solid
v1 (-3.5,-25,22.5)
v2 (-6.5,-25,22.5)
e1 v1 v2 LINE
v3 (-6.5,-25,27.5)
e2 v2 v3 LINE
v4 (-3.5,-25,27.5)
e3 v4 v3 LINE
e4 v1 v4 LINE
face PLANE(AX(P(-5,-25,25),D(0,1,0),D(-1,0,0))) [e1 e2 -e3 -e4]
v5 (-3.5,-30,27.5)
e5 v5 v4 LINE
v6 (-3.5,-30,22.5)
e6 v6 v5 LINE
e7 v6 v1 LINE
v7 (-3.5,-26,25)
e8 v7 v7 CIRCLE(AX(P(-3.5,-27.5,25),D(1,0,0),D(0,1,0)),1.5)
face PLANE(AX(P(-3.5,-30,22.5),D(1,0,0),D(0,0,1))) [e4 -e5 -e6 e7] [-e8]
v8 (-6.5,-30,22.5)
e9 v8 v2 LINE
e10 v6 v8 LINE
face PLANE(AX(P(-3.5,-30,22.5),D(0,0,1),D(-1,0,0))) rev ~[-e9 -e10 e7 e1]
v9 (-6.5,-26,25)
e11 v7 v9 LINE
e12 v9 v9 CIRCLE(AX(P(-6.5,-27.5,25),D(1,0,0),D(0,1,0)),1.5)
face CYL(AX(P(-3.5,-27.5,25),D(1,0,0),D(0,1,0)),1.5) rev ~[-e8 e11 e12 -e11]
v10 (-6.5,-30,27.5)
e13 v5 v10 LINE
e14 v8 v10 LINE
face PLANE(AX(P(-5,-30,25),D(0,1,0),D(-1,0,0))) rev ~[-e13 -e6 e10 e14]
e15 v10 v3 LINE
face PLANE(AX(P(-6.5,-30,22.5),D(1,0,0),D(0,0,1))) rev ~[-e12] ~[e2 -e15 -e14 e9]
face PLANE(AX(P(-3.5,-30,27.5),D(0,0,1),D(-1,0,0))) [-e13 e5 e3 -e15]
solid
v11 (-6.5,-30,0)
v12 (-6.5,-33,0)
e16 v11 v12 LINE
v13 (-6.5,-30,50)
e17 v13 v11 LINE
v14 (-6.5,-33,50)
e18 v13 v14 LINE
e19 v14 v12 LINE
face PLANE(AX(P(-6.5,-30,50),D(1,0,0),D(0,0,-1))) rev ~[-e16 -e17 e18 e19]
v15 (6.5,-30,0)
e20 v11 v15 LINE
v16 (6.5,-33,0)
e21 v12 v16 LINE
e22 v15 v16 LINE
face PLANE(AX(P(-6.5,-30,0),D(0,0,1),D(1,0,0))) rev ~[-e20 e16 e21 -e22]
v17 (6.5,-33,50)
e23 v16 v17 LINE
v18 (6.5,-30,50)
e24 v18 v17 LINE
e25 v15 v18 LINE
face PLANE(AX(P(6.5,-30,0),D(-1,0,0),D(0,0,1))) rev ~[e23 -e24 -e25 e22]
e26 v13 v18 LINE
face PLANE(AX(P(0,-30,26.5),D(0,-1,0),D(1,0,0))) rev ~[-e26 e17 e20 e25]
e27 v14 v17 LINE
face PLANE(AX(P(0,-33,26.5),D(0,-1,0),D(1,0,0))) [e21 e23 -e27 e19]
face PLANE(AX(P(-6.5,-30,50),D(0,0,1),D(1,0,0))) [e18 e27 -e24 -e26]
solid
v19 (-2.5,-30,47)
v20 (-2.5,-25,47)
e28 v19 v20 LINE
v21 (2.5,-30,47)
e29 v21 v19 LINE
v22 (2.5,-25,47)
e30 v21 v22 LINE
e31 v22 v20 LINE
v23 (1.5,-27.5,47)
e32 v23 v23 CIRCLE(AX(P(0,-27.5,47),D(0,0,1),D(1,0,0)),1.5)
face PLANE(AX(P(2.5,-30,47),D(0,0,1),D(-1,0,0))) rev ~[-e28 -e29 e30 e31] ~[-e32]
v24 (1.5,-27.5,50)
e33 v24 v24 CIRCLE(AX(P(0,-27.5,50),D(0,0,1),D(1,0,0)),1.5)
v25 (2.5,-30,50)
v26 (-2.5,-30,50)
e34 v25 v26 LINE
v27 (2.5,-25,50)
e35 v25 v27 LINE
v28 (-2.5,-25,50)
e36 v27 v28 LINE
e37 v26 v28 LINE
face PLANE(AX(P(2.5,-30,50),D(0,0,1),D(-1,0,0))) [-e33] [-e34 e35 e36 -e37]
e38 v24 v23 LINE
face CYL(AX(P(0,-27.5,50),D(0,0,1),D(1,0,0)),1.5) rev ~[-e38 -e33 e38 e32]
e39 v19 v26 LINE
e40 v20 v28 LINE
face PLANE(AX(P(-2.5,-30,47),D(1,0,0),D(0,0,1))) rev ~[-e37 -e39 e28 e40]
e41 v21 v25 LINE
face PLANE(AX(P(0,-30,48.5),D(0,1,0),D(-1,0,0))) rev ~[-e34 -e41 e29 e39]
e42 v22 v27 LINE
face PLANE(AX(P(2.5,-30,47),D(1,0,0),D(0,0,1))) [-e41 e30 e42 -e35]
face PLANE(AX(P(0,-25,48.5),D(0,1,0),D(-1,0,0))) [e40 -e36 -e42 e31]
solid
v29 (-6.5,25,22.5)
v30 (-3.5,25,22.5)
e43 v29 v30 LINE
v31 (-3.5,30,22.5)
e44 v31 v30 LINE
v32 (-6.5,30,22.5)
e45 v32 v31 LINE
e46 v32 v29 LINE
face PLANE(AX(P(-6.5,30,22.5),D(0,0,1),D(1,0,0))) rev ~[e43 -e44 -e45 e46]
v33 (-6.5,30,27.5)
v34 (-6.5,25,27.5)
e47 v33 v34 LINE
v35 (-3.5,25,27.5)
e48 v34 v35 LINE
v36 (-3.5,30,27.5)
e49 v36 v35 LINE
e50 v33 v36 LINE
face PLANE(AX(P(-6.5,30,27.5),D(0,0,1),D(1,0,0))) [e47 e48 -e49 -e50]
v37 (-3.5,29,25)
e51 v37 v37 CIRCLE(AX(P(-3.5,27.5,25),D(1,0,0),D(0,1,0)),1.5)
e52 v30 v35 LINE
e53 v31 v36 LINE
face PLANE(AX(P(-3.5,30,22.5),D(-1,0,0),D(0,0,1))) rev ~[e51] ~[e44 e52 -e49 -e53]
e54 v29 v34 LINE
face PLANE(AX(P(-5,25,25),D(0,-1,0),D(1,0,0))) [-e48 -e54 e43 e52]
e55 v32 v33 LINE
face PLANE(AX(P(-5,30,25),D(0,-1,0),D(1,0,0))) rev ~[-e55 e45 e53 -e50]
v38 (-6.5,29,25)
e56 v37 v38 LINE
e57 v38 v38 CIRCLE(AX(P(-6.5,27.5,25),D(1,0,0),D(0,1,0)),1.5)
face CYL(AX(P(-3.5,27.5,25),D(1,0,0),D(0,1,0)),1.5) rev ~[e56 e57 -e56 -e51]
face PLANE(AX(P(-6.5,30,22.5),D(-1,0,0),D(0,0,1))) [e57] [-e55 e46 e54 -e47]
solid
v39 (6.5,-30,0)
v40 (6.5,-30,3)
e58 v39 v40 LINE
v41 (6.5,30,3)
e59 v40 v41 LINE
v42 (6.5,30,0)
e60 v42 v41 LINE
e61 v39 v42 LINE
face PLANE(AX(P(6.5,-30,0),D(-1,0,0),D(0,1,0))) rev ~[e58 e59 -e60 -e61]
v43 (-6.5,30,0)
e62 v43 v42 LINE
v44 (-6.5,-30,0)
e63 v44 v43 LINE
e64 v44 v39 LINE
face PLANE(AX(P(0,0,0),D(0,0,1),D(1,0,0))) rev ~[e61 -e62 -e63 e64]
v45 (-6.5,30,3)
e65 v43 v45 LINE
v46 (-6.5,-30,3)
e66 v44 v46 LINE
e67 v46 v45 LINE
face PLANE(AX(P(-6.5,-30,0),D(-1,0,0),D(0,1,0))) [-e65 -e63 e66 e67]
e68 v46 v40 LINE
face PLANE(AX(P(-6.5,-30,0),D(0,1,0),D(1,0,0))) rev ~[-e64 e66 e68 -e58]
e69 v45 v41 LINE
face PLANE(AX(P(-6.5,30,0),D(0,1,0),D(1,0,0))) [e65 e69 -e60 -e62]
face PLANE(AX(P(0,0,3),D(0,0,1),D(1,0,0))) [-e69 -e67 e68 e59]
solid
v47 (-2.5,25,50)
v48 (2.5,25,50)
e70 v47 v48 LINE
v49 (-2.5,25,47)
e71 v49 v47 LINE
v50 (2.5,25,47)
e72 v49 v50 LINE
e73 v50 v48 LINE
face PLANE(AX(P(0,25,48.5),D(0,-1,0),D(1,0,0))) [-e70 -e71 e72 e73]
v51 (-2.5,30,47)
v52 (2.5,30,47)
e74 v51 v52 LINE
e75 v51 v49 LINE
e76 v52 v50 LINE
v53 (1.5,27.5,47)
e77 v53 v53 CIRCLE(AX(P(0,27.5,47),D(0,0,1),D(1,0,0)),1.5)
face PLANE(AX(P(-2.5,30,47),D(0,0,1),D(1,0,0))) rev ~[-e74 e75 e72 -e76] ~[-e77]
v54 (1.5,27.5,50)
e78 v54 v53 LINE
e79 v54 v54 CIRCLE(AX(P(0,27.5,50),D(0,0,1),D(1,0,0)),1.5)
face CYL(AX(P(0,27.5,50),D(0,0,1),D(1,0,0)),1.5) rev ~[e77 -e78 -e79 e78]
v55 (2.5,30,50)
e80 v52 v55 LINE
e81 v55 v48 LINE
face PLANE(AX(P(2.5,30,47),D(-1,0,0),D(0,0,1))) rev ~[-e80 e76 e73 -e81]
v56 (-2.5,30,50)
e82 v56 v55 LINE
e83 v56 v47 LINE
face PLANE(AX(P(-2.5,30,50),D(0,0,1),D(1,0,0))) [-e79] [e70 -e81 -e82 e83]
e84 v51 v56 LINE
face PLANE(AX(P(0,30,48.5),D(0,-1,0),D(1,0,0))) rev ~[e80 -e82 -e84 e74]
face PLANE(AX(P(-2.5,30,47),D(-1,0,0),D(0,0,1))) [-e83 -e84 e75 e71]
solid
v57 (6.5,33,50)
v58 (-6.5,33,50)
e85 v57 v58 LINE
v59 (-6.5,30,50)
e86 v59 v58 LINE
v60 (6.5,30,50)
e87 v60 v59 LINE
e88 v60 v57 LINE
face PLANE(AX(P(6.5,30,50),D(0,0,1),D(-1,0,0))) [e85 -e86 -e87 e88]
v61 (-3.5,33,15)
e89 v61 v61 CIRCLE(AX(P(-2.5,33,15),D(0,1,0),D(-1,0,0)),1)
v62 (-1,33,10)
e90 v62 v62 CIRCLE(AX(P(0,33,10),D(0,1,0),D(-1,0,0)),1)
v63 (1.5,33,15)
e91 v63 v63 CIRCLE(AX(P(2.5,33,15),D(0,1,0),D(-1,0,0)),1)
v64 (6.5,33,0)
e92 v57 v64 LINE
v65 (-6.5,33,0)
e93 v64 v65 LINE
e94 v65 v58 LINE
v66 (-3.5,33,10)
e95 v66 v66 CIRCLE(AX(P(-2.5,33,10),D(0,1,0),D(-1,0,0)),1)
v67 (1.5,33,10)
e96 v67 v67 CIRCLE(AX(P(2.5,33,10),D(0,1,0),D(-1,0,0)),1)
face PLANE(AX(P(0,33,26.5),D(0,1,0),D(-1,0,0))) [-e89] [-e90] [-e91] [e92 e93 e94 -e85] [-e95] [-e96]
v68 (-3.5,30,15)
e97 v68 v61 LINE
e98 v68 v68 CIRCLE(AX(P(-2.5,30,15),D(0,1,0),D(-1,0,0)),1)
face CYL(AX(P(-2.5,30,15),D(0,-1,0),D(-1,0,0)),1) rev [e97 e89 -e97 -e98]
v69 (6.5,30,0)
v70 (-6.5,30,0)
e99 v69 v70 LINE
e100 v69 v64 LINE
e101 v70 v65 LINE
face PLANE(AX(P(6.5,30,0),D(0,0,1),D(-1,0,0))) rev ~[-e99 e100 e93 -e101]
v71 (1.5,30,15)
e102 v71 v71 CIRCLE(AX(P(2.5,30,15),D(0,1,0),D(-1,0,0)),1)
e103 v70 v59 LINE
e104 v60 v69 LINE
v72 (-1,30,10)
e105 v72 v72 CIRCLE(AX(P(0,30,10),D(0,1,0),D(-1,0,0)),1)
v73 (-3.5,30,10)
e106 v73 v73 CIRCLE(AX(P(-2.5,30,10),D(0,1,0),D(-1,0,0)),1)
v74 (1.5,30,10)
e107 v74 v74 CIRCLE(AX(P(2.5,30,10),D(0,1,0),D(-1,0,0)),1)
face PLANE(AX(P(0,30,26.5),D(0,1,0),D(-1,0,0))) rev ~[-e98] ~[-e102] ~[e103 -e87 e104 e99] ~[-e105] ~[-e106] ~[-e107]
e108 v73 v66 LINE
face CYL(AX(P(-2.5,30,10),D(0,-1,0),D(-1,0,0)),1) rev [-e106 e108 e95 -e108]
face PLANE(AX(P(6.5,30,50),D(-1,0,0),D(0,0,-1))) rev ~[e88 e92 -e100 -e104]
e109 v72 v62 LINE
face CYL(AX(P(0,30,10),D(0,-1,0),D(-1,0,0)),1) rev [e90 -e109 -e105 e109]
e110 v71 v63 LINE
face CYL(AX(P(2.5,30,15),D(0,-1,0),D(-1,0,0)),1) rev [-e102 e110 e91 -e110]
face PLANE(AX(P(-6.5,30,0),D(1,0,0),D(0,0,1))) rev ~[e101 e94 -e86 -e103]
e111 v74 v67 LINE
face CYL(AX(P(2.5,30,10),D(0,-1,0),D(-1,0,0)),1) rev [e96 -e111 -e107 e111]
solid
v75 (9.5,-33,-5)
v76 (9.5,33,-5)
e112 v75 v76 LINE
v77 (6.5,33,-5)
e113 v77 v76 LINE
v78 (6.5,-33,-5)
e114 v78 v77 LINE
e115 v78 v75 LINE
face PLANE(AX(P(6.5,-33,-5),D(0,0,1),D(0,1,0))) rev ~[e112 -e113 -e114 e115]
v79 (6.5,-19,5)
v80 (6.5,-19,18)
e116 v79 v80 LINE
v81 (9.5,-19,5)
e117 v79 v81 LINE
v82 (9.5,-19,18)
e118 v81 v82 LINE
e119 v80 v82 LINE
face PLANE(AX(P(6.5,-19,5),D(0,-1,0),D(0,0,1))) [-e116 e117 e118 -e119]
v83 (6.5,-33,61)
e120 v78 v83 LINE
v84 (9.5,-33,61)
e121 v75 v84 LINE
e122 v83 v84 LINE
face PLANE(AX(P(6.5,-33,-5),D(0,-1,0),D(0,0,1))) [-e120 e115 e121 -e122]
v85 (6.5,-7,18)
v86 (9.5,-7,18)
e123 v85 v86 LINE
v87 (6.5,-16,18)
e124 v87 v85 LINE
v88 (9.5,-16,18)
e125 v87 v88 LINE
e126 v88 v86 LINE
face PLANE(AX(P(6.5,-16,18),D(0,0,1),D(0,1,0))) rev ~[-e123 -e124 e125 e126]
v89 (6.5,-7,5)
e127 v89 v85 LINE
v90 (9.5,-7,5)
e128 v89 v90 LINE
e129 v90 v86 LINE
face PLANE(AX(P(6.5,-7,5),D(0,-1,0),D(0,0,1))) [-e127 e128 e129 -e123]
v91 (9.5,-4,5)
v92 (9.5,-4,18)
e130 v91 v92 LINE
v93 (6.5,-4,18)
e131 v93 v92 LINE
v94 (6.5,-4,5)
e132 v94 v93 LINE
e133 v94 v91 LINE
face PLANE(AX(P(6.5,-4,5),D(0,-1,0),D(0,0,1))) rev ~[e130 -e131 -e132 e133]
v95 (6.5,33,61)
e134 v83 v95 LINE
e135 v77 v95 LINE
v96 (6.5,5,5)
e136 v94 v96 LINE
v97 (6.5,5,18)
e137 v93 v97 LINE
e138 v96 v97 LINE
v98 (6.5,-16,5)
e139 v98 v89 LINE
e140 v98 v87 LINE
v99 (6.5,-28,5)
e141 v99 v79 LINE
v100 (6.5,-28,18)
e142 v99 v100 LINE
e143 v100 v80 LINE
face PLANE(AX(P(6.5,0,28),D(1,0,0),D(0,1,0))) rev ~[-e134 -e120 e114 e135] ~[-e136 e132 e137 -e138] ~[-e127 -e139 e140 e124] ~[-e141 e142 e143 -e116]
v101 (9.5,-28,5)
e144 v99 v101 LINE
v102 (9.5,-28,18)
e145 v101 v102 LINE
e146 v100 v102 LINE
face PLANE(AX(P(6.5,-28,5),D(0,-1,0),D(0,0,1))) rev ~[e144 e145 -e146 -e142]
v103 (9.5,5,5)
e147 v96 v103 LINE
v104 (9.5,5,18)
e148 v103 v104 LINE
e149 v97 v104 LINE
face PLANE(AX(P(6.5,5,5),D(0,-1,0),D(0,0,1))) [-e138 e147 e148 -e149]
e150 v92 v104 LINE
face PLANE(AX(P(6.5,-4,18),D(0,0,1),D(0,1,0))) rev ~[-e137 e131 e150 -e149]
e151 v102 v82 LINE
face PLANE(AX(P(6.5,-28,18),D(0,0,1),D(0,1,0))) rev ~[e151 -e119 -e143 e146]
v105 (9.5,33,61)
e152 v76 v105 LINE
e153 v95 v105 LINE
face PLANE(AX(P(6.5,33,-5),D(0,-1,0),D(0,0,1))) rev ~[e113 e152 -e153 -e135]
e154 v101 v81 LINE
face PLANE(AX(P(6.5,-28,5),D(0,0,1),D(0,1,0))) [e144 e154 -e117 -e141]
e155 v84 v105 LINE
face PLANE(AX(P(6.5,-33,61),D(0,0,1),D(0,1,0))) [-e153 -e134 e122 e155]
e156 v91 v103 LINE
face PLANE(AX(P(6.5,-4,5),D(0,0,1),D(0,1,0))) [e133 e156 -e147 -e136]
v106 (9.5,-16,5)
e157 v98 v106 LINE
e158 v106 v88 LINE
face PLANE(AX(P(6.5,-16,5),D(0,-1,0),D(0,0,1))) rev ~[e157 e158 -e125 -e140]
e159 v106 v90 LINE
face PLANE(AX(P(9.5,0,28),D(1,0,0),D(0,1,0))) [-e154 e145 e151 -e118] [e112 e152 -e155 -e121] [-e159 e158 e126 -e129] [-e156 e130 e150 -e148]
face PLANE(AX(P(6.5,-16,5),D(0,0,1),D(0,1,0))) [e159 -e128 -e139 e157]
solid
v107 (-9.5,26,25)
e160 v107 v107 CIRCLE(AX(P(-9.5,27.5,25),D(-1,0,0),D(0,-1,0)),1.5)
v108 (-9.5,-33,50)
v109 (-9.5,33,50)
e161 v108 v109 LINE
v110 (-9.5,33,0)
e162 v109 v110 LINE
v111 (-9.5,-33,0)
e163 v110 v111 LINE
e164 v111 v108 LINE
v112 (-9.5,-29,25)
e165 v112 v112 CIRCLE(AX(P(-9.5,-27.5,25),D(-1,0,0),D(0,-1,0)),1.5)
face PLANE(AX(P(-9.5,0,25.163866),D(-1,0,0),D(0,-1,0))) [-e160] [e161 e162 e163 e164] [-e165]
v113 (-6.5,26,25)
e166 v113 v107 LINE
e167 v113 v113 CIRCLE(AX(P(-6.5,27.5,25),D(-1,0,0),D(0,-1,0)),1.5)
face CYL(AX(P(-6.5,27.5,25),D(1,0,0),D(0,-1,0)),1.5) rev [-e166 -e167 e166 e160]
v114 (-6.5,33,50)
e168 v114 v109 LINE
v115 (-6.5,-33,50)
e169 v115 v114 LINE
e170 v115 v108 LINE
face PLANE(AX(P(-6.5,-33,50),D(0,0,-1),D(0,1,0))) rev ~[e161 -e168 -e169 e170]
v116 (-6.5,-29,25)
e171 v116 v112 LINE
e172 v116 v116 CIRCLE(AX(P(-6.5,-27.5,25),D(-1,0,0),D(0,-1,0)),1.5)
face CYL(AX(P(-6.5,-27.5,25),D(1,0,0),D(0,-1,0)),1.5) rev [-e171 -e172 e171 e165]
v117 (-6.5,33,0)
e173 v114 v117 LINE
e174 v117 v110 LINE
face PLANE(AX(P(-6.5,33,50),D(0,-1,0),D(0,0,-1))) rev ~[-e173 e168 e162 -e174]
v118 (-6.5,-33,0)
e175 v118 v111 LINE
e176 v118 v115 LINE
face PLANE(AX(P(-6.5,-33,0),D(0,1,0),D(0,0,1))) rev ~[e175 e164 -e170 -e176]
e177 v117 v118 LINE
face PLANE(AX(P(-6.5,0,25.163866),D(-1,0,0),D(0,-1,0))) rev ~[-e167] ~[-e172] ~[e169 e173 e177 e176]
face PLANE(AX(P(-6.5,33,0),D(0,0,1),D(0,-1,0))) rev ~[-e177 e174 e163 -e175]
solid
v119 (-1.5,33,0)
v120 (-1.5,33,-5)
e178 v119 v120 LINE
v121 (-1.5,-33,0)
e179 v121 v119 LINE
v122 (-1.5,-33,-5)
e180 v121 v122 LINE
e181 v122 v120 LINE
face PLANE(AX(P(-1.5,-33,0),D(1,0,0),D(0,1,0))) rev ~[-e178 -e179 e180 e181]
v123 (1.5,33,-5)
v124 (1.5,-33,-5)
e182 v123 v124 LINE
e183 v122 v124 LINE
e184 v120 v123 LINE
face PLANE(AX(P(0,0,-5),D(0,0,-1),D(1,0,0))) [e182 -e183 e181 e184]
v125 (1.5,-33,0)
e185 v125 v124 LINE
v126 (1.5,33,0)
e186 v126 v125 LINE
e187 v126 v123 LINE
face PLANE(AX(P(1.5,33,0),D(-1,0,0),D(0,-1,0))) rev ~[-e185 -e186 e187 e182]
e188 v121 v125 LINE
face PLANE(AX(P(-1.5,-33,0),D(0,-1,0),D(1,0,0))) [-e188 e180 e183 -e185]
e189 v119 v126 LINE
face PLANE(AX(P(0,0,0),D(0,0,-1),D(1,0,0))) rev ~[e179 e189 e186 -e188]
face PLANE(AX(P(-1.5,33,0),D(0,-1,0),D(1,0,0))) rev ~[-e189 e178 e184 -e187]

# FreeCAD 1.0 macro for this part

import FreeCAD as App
import Part
import Sketcher
from FreeCAD import Vector
Q = App.Units.Quantity

doc = App.newDocument("Part")
body = doc.addObject("PartDesign::Body", "Body")

# Sketch on XY plane
sketch1 = body.newObject("Sketcher::SketchObject", "Sketch")
sketch1.AttachmentSupport = (doc.getObject("XY_Plane"), [""])
sketch1.MapMode = "FlatFace"
sketch1.addGeometry(Part.LineSegment(Vector(-6, 30, 0), Vector(-6, -30, 0)), False)
sketch1.addGeometry(Part.LineSegment(Vector(-6, -30, 0), Vector(6, -30, 0)), False)
sketch1.addGeometry(Part.LineSegment(Vector(6, -30, 0), Vector(6, 30, 0)), False)
sketch1.addGeometry(Part.LineSegment(Vector(6, 30, 0), Vector(-6, 30, 0)), False)
sketch1.addConstraint(Sketcher.Constraint("Coincident", 0, 2, 1, 1))
sketch1.addConstraint(Sketcher.Constraint("Coincident", 1, 2, 2, 1))
sketch1.addConstraint(Sketcher.Constraint("Coincident", 2, 2, 3, 1))
sketch1.addConstraint(Sketcher.Constraint("Coincident", 3, 2, 0, 1))
sketch1.addConstraint(Sketcher.Constraint("Vertical", 0))
sketch1.addConstraint(Sketcher.Constraint("Horizontal", 1))
sketch1.addConstraint(Sketcher.Constraint("Vertical", 2))
sketch1.addConstraint(Sketcher.Constraint("Horizontal", 3))
sketch1.addConstraint(Sketcher.Constraint("Symmetric", 0, 2, 2, 2, -1, 1))
sketch1.addConstraint(Sketcher.Constraint("DistanceX", 1, 1, 1, 2, Q("13 mm")))
sketch1.addConstraint(Sketcher.Constraint("DistanceY", 0, 2, 0, 1, Q("60 mm")))
pad1 = body.newObject("PartDesign::Pad", "Pad")
pad1.Profile = sketch1
pad1.Length = 3
body2 = doc.addObject("PartDesign::Body", "Body001")

# Sketch on XZ plane
sketch2 = body2.newObject("Sketcher::SketchObject", "Sketch001")
sketch2.AttachmentSupport = (doc.getObject("XZ_Plane001"), [""])
sketch2.MapMode = "FlatFace"
sketch2.AttachmentOffset = App.Placement(Vector(0, 0, -30), App.Rotation())
sketch2.addGeometry(Part.LineSegment(Vector(6.5, 50, 0), Vector(6.5, 0, 0)), False)
sketch2.addGeometry(Part.LineSegment(Vector(6.5, 0, 0), Vector(-6.5, 0, 0)), False)
sketch2.addGeometry(Part.LineSegment(Vector(-6.5, 0, 0), Vector(-6.5, 50, 0)), False)
sketch2.addGeometry(Part.LineSegment(Vector(-6.5, 50, 0), Vector(6.5, 50, 0)), False)
sketch2.addGeometry(Part.Circle(Vector(2.5, 10, 0), Vector(0, 0, 1), 1), False)
sketch2.addGeometry(Part.Circle(Vector(0, 10, 0), Vector(0, 0, 1), 1), False)
sketch2.addGeometry(Part.Circle(Vector(-2.5, 10, 0), Vector(0, 0, 1), 1), False)
sketch2.addGeometry(Part.Circle(Vector(2.5, 15, 0), Vector(0, 0, 1), 1), False)
sketch2.addGeometry(Part.Circle(Vector(-2.5, 15, 0), Vector(0, 0, 1), 1), False)
sketch2.addConstraint(Sketcher.Constraint("Coincident", 0, 2, 1, 1))
sketch2.addConstraint(Sketcher.Constraint("Coincident", 1, 2, 2, 1))
sketch2.addConstraint(Sketcher.Constraint("Coincident", 2, 2, 3, 1))
sketch2.addConstraint(Sketcher.Constraint("Coincident", 3, 2, 0, 1))
sketch2.addConstraint(Sketcher.Constraint("Vertical", 0))
sketch2.addConstraint(Sketcher.Constraint("Horizontal", 1))
sketch2.addConstraint(Sketcher.Constraint("Vertical", 2))
sketch2.addConstraint(Sketcher.Constraint("Horizontal", 3))
sketch2.addConstraint(Sketcher.Constraint("Equal", 4, 5))
sketch2.addConstraint(Sketcher.Constraint("Equal", 5, 6))
sketch2.addConstraint(Sketcher.Constraint("Equal", 6, 7))
sketch2.addConstraint(Sketcher.Constraint("Equal", 7, 8))
sketch2.addConstraint(Sketcher.Constraint("Symmetric", 0, 2, 1, 2, -1, 1))
sketch2.addConstraint(Sketcher.Constraint("Symmetric", 4, 3, 6, 3, -2))
sketch2.addConstraint(Sketcher.Constraint("Symmetric", 7, 3, 8, 3, -2))
sketch2.addConstraint(Sketcher.Constraint("PointOnObject", 5, 3, -2))
sketch2.addConstraint(Sketcher.Constraint("Horizontal", 4, 3, 5, 3))
sketch2.addConstraint(Sketcher.Constraint("Vertical", 4, 3, 7, 3))
sketch2.addConstraint(Sketcher.Constraint("Diameter", 4, Q("2 mm")))
sketch2.addConstraint(Sketcher.Constraint("DistanceX", 1, 2, 1, 1, Q("13 mm")))
sketch2.addConstraint(Sketcher.Constraint("DistanceY", 0, 2, 0, 1, Q("50 mm")))
sketch2.addConstraint(Sketcher.Constraint("DistanceY", -1, 1, 4, 3, Q("10 mm")))
sketch2.addConstraint(Sketcher.Constraint("DistanceY", -1, 1, 7, 3, Q("15 mm")))
sketch2.addConstraint(Sketcher.Constraint("DistanceX", 6, 3, 4, 3, Q("5 mm")))
pad2 = body2.newObject("PartDesign::Pad", "Pad001")
pad2.Profile = sketch2
pad2.Length = 3
pad2.Reversed = True
body3 = doc.addObject("PartDesign::Body", "Body002")

# Sketch on XZ plane
sketch3 = body3.newObject("Sketcher::SketchObject", "Sketch002")
sketch3.AttachmentSupport = (doc.getObject("XZ_Plane002"), [""])
sketch3.MapMode = "FlatFace"
sketch3.AttachmentOffset = App.Placement(Vector(0, 0, 30), App.Rotation())
sketch3.addGeometry(Part.LineSegment(Vector(-6, 50, 0), Vector(-6, 0, 0)), False)
sketch3.addGeometry(Part.LineSegment(Vector(-6, 0, 0), Vector(6, 0, 0)), False)
sketch3.addGeometry(Part.LineSegment(Vector(6, 0, 0), Vector(6, 50, 0)), False)
sketch3.addGeometry(Part.LineSegment(Vector(6, 50, 0), Vector(-6, 50, 0)), False)
sketch3.addConstraint(Sketcher.Constraint("Coincident", 0, 2, 1, 1))
sketch3.addConstraint(Sketcher.Constraint("Coincident", 1, 2, 2, 1))
sketch3.addConstraint(Sketcher.Constraint("Coincident", 2, 2, 3, 1))
sketch3.addConstraint(Sketcher.Constraint("Coincident", 3, 2, 0, 1))
sketch3.addConstraint(Sketcher.Constraint("Vertical", 0))
sketch3.addConstraint(Sketcher.Constraint("Horizontal", 1))
sketch3.addConstraint(Sketcher.Constraint("Vertical", 2))
sketch3.addConstraint(Sketcher.Constraint("Horizontal", 3))
sketch3.addConstraint(Sketcher.Constraint("Symmetric", 0, 2, 1, 2, -1, 1))
sketch3.addConstraint(Sketcher.Constraint("DistanceX", 1, 1, 1, 2, Q("13 mm")))
sketch3.addConstraint(Sketcher.Constraint("DistanceY", 0, 2, 0, 1, Q("50 mm")))
pad3 = body3.newObject("PartDesign::Pad", "Pad002")
pad3.Profile = sketch3
pad3.Length = 3
body4 = doc.addObject("PartDesign::Body", "Body003")

# Sketch on YZ plane
sketch4 = body4.newObject("Sketcher::SketchObject", "Sketch003")
sketch4.AttachmentSupport = (doc.getObject("YZ_Plane003"), [""])
sketch4.MapMode = "FlatFace"
sketch4.AttachmentOffset = App.Placement(Vector(0, 0, 6.5), App.Rotation())
sketch4.addGeometry(Part.LineSegment(Vector(-33, 61, 0), Vector(-33, -5, 0)), False)
sketch4.addGeometry(Part.LineSegment(Vector(-33, -5, 0), Vector(33, -5, 0)), False)
sketch4.addGeometry(Part.LineSegment(Vector(33, -5, 0), Vector(33, 61, 0)), False)
sketch4.addGeometry(Part.LineSegment(Vector(33, 61, 0), Vector(-33, 61, 0)), False)
sketch4.addGeometry(Part.LineSegment(Vector(-19, 5, 0), Vector(-28, 5, 0)), False)
sketch4.addGeometry(Part.LineSegment(Vector(-28, 5, 0), Vector(-28, 18, 0)), False)
sketch4.addGeometry(Part.LineSegment(Vector(-28, 18, 0), Vector(-19, 18, 0)), False)
sketch4.addGeometry(Part.LineSegment(Vector(-19, 18, 0), Vector(-19, 5, 0)), False)
sketch4.addGeometry(Part.LineSegment(Vector(-7, 5, 0), Vector(-16, 5, 0)), False)
sketch4.addGeometry(Part.LineSegment(Vector(-16, 5, 0), Vector(-16, 18, 0)), False)
sketch4.addGeometry(Part.LineSegment(Vector(-16, 18, 0), Vector(-7, 18, 0)), False)
sketch4.addGeometry(Part.LineSegment(Vector(-7, 18, 0), Vector(-7, 5, 0)), False)
sketch4.addGeometry(Part.LineSegment(Vector(5, 5, 0), Vector(-4, 5, 0)), False)
sketch4.addGeometry(Part.LineSegment(Vector(-4, 5, 0), Vector(-4, 18, 0)), False)
sketch4.addGeometry(Part.LineSegment(Vector(-4, 18, 0), Vector(5, 18, 0)), False)
sketch4.addGeometry(Part.LineSegment(Vector(5, 18, 0), Vector(5, 5, 0)), False)
sketch4.addConstraint(Sketcher.Constraint("Coincident", 0, 2, 1, 1))
sketch4.addConstraint(Sketcher.Constraint("Coincident", 1, 2, 2, 1))
sketch4.addConstraint(Sketcher.Constraint("Coincident", 2, 2, 3, 1))
sketch4.addConstraint(Sketcher.Constraint("Coincident", 3, 2, 0, 1))
sketch4.addConstraint(Sketcher.Constraint("Coincident", 4, 2, 5, 1))
sketch4.addConstraint(Sketcher.Constraint("Coincident", 5, 2, 6, 1))
sketch4.addConstraint(Sketcher.Constraint("Coincident", 6, 2, 7, 1))
sketch4.addConstraint(Sketcher.Constraint("Coincident", 7, 2, 4, 1))
sketch4.addConstraint(Sketcher.Constraint("Coincident", 8, 2, 9, 1))
sketch4.addConstraint(Sketcher.Constraint("Coincident", 9, 2, 10, 1))
sketch4.addConstraint(Sketcher.Constraint("Coincident", 10, 2, 11, 1))
sketch4.addConstraint(Sketcher.Constraint("Coincident", 11, 2, 8, 1))
sketch4.addConstraint(Sketcher.Constraint("Coincident", 12, 2, 13, 1))
sketch4.addConstraint(Sketcher.Constraint("Coincident", 13, 2, 14, 1))
sketch4.addConstraint(Sketcher.Constraint("Coincident", 14, 2, 15, 1))
sketch4.addConstraint(Sketcher.Constraint("Coincident", 15, 2, 12, 1))
sketch4.addConstraint(Sketcher.Constraint("Vertical", 0))
sketch4.addConstraint(Sketcher.Constraint("Horizontal", 1))
sketch4.addConstraint(Sketcher.Constraint("Vertical", 2))
sketch4.addConstraint(Sketcher.Constraint("Horizontal", 3))
sketch4.addConstraint(Sketcher.Constraint("Horizontal", 4))
sketch4.addConstraint(Sketcher.Constraint("Vertical", 5))
sketch4.addConstraint(Sketcher.Constraint("Horizontal", 6))
sketch4.addConstraint(Sketcher.Constraint("Vertical", 7))
sketch4.addConstraint(Sketcher.Constraint("Horizontal", 8))
sketch4.addConstraint(Sketcher.Constraint("Vertical", 9))
sketch4.addConstraint(Sketcher.Constraint("Horizontal", 10))
sketch4.addConstraint(Sketcher.Constraint("Vertical", 11))
sketch4.addConstraint(Sketcher.Constraint("Horizontal", 12))
sketch4.addConstraint(Sketcher.Constraint("Vertical", 13))
sketch4.addConstraint(Sketcher.Constraint("Horizontal", 14))
sketch4.addConstraint(Sketcher.Constraint("Vertical", 15))
sketch4.addConstraint(Sketcher.Constraint("Horizontal", 7, 2, 8, 2))
sketch4.addConstraint(Sketcher.Constraint("Horizontal", 6, 2, 9, 2))
sketch4.addConstraint(Sketcher.Constraint("Horizontal", 11, 2, 12, 2))
sketch4.addConstraint(Sketcher.Constraint("Horizontal", 10, 2, 13, 2))
sketch4.addConstraint(Sketcher.Constraint("Equal", 6, 8))
sketch4.addConstraint(Sketcher.Constraint("Equal", 10, 12))
sketch4.addConstraint(Sketcher.Constraint("Equal", 3, 0))
sketch4.addConstraint(Sketcher.Constraint("DistanceX", 1, 1, 1, 2, Q("66 mm")))
sketch4.addConstraint(Sketcher.Constraint("DistanceX", 4, 2, 4, 1, Q("9 mm")))
sketch4.addConstraint(Sketcher.Constraint("DistanceY", 5, 1, 5, 2, Q("13 mm")))
sketch4.addConstraint(Sketcher.Constraint("DistanceX", 0, 2, -1, 1, Q("33 mm")))
sketch4.addConstraint(Sketcher.Constraint("DistanceY", 0, 2, -1, 1, Q("5 mm")))
sketch4.addConstraint(Sketcher.Constraint("DistanceX", 4, 2, -1, 1, Q("28 mm")))
sketch4.addConstraint(Sketcher.Constraint("DistanceY", -1, 1, 4, 2, Q("5 mm")))
sketch4.addConstraint(Sketcher.Constraint("DistanceX", 8, 2, -1, 1, Q("16 mm")))
sketch4.addConstraint(Sketcher.Constraint("DistanceX", 12, 2, -1, 1, Q("4 mm")))
pad4 = body4.newObject("PartDesign::Pad", "Pad003")
pad4.Profile = sketch4
pad4.Length = 3
body5 = doc.addObject("PartDesign::Body", "Body004")

# Sketch on YZ plane
sketch5 = body5.newObject("Sketcher::SketchObject", "Sketch004")
sketch5.AttachmentSupport = (doc.getObject("YZ_Plane004"), [""])
sketch5.MapMode = "FlatFace"
sketch5.AttachmentOffset = App.Placement(Vector(0, 0, -6.5), App.Rotation())
sketch5.addGeometry(Part.LineSegment(Vector(33, 0, 0), Vector(-33, 0, 0)), False)
sketch5.addGeometry(Part.LineSegment(Vector(-33, 0, 0), Vector(-33, 50, 0)), False)
sketch5.addGeometry(Part.LineSegment(Vector(-33, 50, 0), Vector(33, 50, 0)), False)
sketch5.addGeometry(Part.LineSegment(Vector(33, 50, 0), Vector(33, 0, 0)), False)
sketch5.addGeometry(Part.Circle(Vector(27.5, 25, 0), Vector(0, 0, 1), 1.5), False)
sketch5.addGeometry(Part.Circle(Vector(-27.5, 25, 0), Vector(0, 0, 1), 1.5), False)
sketch5.addConstraint(Sketcher.Constraint("Coincident", 0, 2, 1, 1))
sketch5.addConstraint(Sketcher.Constraint("Coincident", 1, 2, 2, 1))
sketch5.addConstraint(Sketcher.Constraint("Coincident", 2, 2, 3, 1))
sketch5.addConstraint(Sketcher.Constraint("Coincident", 3, 2, 0, 1))
sketch5.addConstraint(Sketcher.Constraint("Horizontal", 0))
sketch5.addConstraint(Sketcher.Constraint("Vertical", 1))
sketch5.addConstraint(Sketcher.Constraint("Horizontal", 2))
sketch5.addConstraint(Sketcher.Constraint("Vertical", 3))
sketch5.addConstraint(Sketcher.Constraint("Equal", 4, 5))
sketch5.addConstraint(Sketcher.Constraint("Symmetric", 0, 2, 3, 2, -1, 1))
sketch5.addConstraint(Sketcher.Constraint("Symmetric", 4, 3, 5, 3, -2))
sketch5.addConstraint(Sketcher.Constraint("Diameter", 4, Q("3 mm")))
sketch5.addConstraint(Sketcher.Constraint("DistanceX", 0, 2, 0, 1, Q("66 mm")))
sketch5.addConstraint(Sketcher.Constraint("DistanceY", 1, 1, 1, 2, Q("50 mm")))
sketch5.addConstraint(Sketcher.Constraint("DistanceY", -1, 1, 4, 3, Q("25 mm")))
sketch5.addConstraint(Sketcher.Constraint("DistanceX", 5, 3, 4, 3, Q("55 mm")))
pad5 = body5.newObject("PartDesign::Pad", "Pad004")
pad5.Profile = sketch5
pad5.Length = 3
pad5.Reversed = True
body6 = doc.addObject("PartDesign::Body", "Body005")

# Sketch on XY plane
sketch6 = body6.newObject("Sketcher::SketchObject", "Sketch005")
sketch6.AttachmentSupport = (doc.getObject("XY_Plane005"), [""])
sketch6.MapMode = "FlatFace"
sketch6.addGeometry(Part.LineSegment(Vector(-1.5, 33, 0), Vector(1.5, 33, 0)), False)
sketch6.addGeometry(Part.LineSegment(Vector(1.5, 33, 0), Vector(1.5, -33, 0)), False)
sketch6.addGeometry(Part.LineSegment(Vector(1.5, -33, 0), Vector(-1.5, -33, 0)), False)
sketch6.addGeometry(Part.LineSegment(Vector(-1.5, -33, 0), Vector(-1.5, 33, 0)), False)
sketch6.addConstraint(Sketcher.Constraint("Coincident", 0, 2, 1, 1))
sketch6.addConstraint(Sketcher.Constraint("Coincident", 1, 2, 2, 1))
sketch6.addConstraint(Sketcher.Constraint("Coincident", 2, 2, 3, 1))
sketch6.addConstraint(Sketcher.Constraint("Coincident", 3, 2, 0, 1))
sketch6.addConstraint(Sketcher.Constraint("Horizontal", 0))
sketch6.addConstraint(Sketcher.Constraint("Vertical", 1))
sketch6.addConstraint(Sketcher.Constraint("Horizontal", 2))
sketch6.addConstraint(Sketcher.Constraint("Vertical", 3))
sketch6.addConstraint(Sketcher.Constraint("Symmetric", 0, 2, 2, 2, -1, 1))
sketch6.addConstraint(Sketcher.Constraint("DistanceX", 0, 1, 0, 2, Q("3 mm")))
sketch6.addConstraint(Sketcher.Constraint("DistanceY", 1, 2, 1, 1, Q("66 mm")))
pad6 = body6.newObject("PartDesign::Pad", "Pad005")
pad6.Profile = sketch6
pad6.Length = 5
pad6.Reversed = True
body7 = doc.addObject("PartDesign::Body", "Body006")

# Sketch on XZ plane
sketch7 = body7.newObject("Sketcher::SketchObject", "Sketch006")
sketch7.AttachmentSupport = (doc.getObject("XZ_Plane006"), [""])
sketch7.MapMode = "FlatFace"
sketch7.AttachmentOffset = App.Placement(Vector(0, 0, -30), App.Rotation())
sketch7.addGeometry(Part.LineSegment(Vector(-2.5, 50, 0), Vector(-2.5, 47, 0)), False)
sketch7.addGeometry(Part.LineSegment(Vector(-2.5, 47, 0), Vector(2.5, 47, 0)), False)
sketch7.addGeometry(Part.LineSegment(Vector(2.5, 47, 0), Vector(2.5, 50, 0)), False)
sketch7.addGeometry(Part.LineSegment(Vector(2.5, 50, 0), Vector(-2.5, 50, 0)), False)
sketch7.addConstraint(Sketcher.Constraint("Coincident", 0, 2, 1, 1))
sketch7.addConstraint(Sketcher.Constraint("Coincident", 1, 2, 2, 1))
sketch7.addConstraint(Sketcher.Constraint("Coincident", 2, 2, 3, 1))
sketch7.addConstraint(Sketcher.Constraint("Coincident", 3, 2, 0, 1))
sketch7.addConstraint(Sketcher.Constraint("Vertical", 0))
sketch7.addConstraint(Sketcher.Constraint("Horizontal", 1))
sketch7.addConstraint(Sketcher.Constraint("Vertical", 2))
sketch7.addConstraint(Sketcher.Constraint("Horizontal", 3))
sketch7.addConstraint(Sketcher.Constraint("DistanceX", 1, 1, 1, 2, Q("5 mm")))
sketch7.addConstraint(Sketcher.Constraint("DistanceY", 0, 2, 0, 1, Q("3 mm")))
sketch7.addConstraint(Sketcher.Constraint("DistanceY", -1, 1, 0, 2, Q("47 mm")))
sketch7.addConstraint(Sketcher.Constraint("DistanceX", 0, 2, -1, 1, Q("2.5 mm")))
pad7 = body7.newObject("PartDesign::Pad", "Pad006")
pad7.Profile = sketch7
pad7.Length = 5

# Sketch on XY plane
sketch8 = body7.newObject("Sketcher::SketchObject", "Sketch007")
sketch8.AttachmentSupport = (doc.getObject("XY_Plane006"), [""])
sketch8.MapMode = "FlatFace"
sketch8.AttachmentOffset = App.Placement(Vector(0, 0, 50), App.Rotation())
sketch8.addGeometry(Part.Circle(Vector(0, 27.5, 0), Vector(0, 0, 1), 1.5), False)
sketch8.addConstraint(Sketcher.Constraint("PointOnObject", 0, 3, -2))
sketch8.addConstraint(Sketcher.Constraint("Diameter", 0, Q("3 mm")))
sketch8.addConstraint(Sketcher.Constraint("DistanceY", -1, 1, 0, 3, Q("27.5 mm")))
pocket1 = body7.newObject("PartDesign::Pocket", "Pocket")
pocket1.Profile = sketch8
pocket1.Length = 3
body8 = doc.addObject("PartDesign::Body", "Body007")

# Sketch on XZ plane
sketch9 = body8.newObject("Sketcher::SketchObject", "Sketch008")
sketch9.AttachmentSupport = (doc.getObject("XZ_Plane007"), [""])
sketch9.MapMode = "FlatFace"
sketch9.AttachmentOffset = App.Placement(Vector(0, 0, -30), App.Rotation())
sketch9.addGeometry(Part.LineSegment(Vector(-6.5, 27.5, 0), Vector(-6.5, 22.5, 0)), False)
sketch9.addGeometry(Part.LineSegment(Vector(-6.5, 22.5, 0), Vector(-3.5, 22.5, 0)), False)
sketch9.addGeometry(Part.LineSegment(Vector(-3.5, 22.5, 0), Vector(-3.5, 27.5, 0)), False)
sketch9.addGeometry(Part.LineSegment(Vector(-3.5, 27.5, 0), Vector(-6.5, 27.5, 0)), False)
sketch9.addConstraint(Sketcher.Constraint("Coincident", 0, 2, 1, 1))
sketch9.addConstraint(Sketcher.Constraint("Coincident", 1, 2, 2, 1))
sketch9.addConstraint(Sketcher.Constraint("Coincident", 2, 2, 3, 1))
sketch9.addConstraint(Sketcher.Constraint("Coincident", 3, 2, 0, 1))
sketch9.addConstraint(Sketcher.Constraint("Vertical", 0))
sketch9.addConstraint(Sketcher.Constraint("Horizontal", 1))
sketch9.addConstraint(Sketcher.Constraint("Vertical", 2))
sketch9.addConstraint(Sketcher.Constraint("Horizontal", 3))
sketch9.addConstraint(Sketcher.Constraint("DistanceX", 1, 1, 1, 2, Q("3 mm")))
sketch9.addConstraint(Sketcher.Constraint("DistanceY", 0, 2, 0, 1, Q("5 mm")))
sketch9.addConstraint(Sketcher.Constraint("DistanceX", 0, 2, -1, 1, Q("6.5 mm")))
sketch9.addConstraint(Sketcher.Constraint("DistanceY", -1, 1, 0, 2, Q("22.5 mm")))
pad8 = body8.newObject("PartDesign::Pad", "Pad007")
pad8.Profile = sketch9
pad8.Length = 5

# Sketch on YZ plane
sketch10 = body8.newObject("Sketcher::SketchObject", "Sketch009")
sketch10.AttachmentSupport = (doc.getObject("YZ_Plane007"), [""])
sketch10.MapMode = "FlatFace"
sketch10.AttachmentOffset = App.Placement(Vector(0, 0, -3.5), App.Rotation())
sketch10.addGeometry(Part.Circle(Vector(27.5, 25, 0), Vector(0, 0, 1), 1.5), False)
sketch10.addConstraint(Sketcher.Constraint("Diameter", 0, Q("3 mm")))
sketch10.addConstraint(Sketcher.Constraint("DistanceY", -1, 1, 0, 3, Q("25 mm")))
sketch10.addConstraint(Sketcher.Constraint("DistanceX", -1, 1, 0, 3, Q("27.5 mm")))
pocket2 = body8.newObject("PartDesign::Pocket", "Pocket001")
pocket2.Profile = sketch10
pocket2.Length = 3
body9 = doc.addObject("PartDesign::Body", "Body008")

# Sketch on XZ plane
sketch11 = body9.newObject("Sketcher::SketchObject", "Sketch010")
sketch11.AttachmentSupport = (doc.getObject("XZ_Plane008"), [""])
sketch11.MapMode = "FlatFace"
sketch11.AttachmentOffset = App.Placement(Vector(0, 0, 30), App.Rotation())
sketch11.addGeometry(Part.LineSegment(Vector(-3.5, 27.5, 0), Vector(-3.5, 22.5, 0)), False)
sketch11.addGeometry(Part.LineSegment(Vector(-3.5, 22.5, 0), Vector(-6.5, 22.5, 0)), False)
sketch11.addGeometry(Part.LineSegment(Vector(-6.5, 22.5, 0), Vector(-6.5, 27.5, 0)), False)
sketch11.addGeometry(Part.LineSegment(Vector(-6.5, 27.5, 0), Vector(-3.5, 27.5, 0)), False)
sketch11.addConstraint(Sketcher.Constraint("Coincident", 0, 2, 1, 1))
sketch11.addConstraint(Sketcher.Constraint("Coincident", 1, 2, 2, 1))
sketch11.addConstraint(Sketcher.Constraint("Coincident", 2, 2, 3, 1))
sketch11.addConstraint(Sketcher.Constraint("Coincident", 3, 2, 0, 1))
sketch11.addConstraint(Sketcher.Constraint("Vertical", 0))
sketch11.addConstraint(Sketcher.Constraint("Horizontal", 1))
sketch11.addConstraint(Sketcher.Constraint("Vertical", 2))
sketch11.addConstraint(Sketcher.Constraint("Horizontal", 3))
sketch11.addConstraint(Sketcher.Constraint("DistanceX", 1, 2, 1, 1, Q("3 mm")))
sketch11.addConstraint(Sketcher.Constraint("DistanceY", 0, 2, 0, 1, Q("5 mm")))
sketch11.addConstraint(Sketcher.Constraint("DistanceX", 0, 2, -1, 1, Q("3.5 mm")))
sketch11.addConstraint(Sketcher.Constraint("DistanceY", -1, 1, 0, 2, Q("22.5 mm")))
pad9 = body9.newObject("PartDesign::Pad", "Pad008")
pad9.Profile = sketch11
pad9.Length = 5
pad9.Reversed = True

# Sketch on YZ plane
sketch12 = body9.newObject("Sketcher::SketchObject", "Sketch011")
sketch12.AttachmentSupport = (doc.getObject("YZ_Plane008"), [""])
sketch12.MapMode = "FlatFace"
sketch12.AttachmentOffset = App.Placement(Vector(0, 0, -3.5), App.Rotation())
sketch12.addGeometry(Part.Circle(Vector(-27.5, 25, 0), Vector(0, 0, 1), 1.5), False)
sketch12.addConstraint(Sketcher.Constraint("Diameter", 0, Q("3 mm")))
sketch12.addConstraint(Sketcher.Constraint("DistanceY", -1, 1, 0, 3, Q("25 mm")))
sketch12.addConstraint(Sketcher.Constraint("DistanceX", 0, 3, -1, 1, Q("27.5 mm")))
pocket3 = body9.newObject("PartDesign::Pocket", "Pocket002")
pocket3.Profile = sketch12
pocket3.Length = 3
body10 = doc.addObject("PartDesign::Body", "Body009")

# Sketch on XZ plane
sketch13 = body10.newObject("Sketcher::SketchObject", "Sketch012")
sketch13.AttachmentSupport = (doc.getObject("XZ_Plane009"), [""])
sketch13.MapMode = "FlatFace"
sketch13.AttachmentOffset = App.Placement(Vector(0, 0, 30), App.Rotation())
sketch13.addGeometry(Part.LineSegment(Vector(2.5, 50, 0), Vector(2.5, 47, 0)), False)
sketch13.addGeometry(Part.LineSegment(Vector(2.5, 47, 0), Vector(-2.5, 47, 0)), False)
sketch13.addGeometry(Part.LineSegment(Vector(-2.5, 47, 0), Vector(-2.5, 50, 0)), False)
sketch13.addGeometry(Part.LineSegment(Vector(-2.5, 50, 0), Vector(2.5, 50, 0)), False)
sketch13.addConstraint(Sketcher.Constraint("Coincident", 0, 2, 1, 1))
sketch13.addConstraint(Sketcher.Constraint("Coincident", 1, 2, 2, 1))
sketch13.addConstraint(Sketcher.Constraint("Coincident", 2, 2, 3, 1))
sketch13.addConstraint(Sketcher.Constraint("Coincident", 3, 2, 0, 1))
sketch13.addConstraint(Sketcher.Constraint("Vertical", 0))
sketch13.addConstraint(Sketcher.Constraint("Horizontal", 1))
sketch13.addConstraint(Sketcher.Constraint("Vertical", 2))
sketch13.addConstraint(Sketcher.Constraint("Horizontal", 3))
sketch13.addConstraint(Sketcher.Constraint("DistanceX", 1, 2, 1, 1, Q("5 mm")))
sketch13.addConstraint(Sketcher.Constraint("DistanceY", 0, 2, 0, 1, Q("3 mm")))
sketch13.addConstraint(Sketcher.Constraint("DistanceY", -1, 1, 0, 2, Q("47 mm")))
sketch13.addConstraint(Sketcher.Constraint("DistanceX", -1, 1, 0, 2, Q("2.5 mm")))
pad10 = body10.newObject("PartDesign::Pad", "Pad009")
pad10.Profile = sketch13
pad10.Length = 5
pad10.Reversed = True

# Sketch on XY plane
sketch14 = body10.newObject("Sketcher::SketchObject", "Sketch013")
sketch14.AttachmentSupport = (doc.getObject("XY_Plane009"), [""])
sketch14.MapMode = "FlatFace"
sketch14.AttachmentOffset = App.Placement(Vector(0, 0, 50), App.Rotation())
sketch14.addGeometry(Part.Circle(Vector(0, -27.5, 0), Vector(0, 0, 1), 1.5), False)
sketch14.addConstraint(Sketcher.Constraint("PointOnObject", 0, 3, -2))
sketch14.addConstraint(Sketcher.Constraint("Diameter", 0, Q("3 mm")))
sketch14.addConstraint(Sketcher.Constraint("DistanceY", 0, 3, -1, 1, Q("27.5 mm")))
pocket4 = body10.newObject("PartDesign::Pocket", "Pocket003")
pocket4.Profile = sketch14
pocket4.Length = 3

doc.recompute()
